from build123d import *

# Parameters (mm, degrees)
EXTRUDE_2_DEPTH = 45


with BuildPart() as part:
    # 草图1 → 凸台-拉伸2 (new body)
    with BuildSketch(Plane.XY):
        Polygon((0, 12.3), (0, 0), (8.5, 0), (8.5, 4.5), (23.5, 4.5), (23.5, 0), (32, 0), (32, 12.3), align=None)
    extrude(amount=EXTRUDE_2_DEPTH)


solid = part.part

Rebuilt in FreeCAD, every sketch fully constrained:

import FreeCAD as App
import Part
import Sketcher

V = App.Vector

doc = App.newDocument("Part")
body = doc.addObject("PartDesign::Body", "Body")

# Sketch on XY plane
sketch1 = doc.addObject("Sketcher::SketchObject", "Sketch")
body.addObject(sketch1)
sketch1.AttachmentSupport = (doc.XY_Plane, [""])
sketch1.MapMode = "FlatFace"
sketch1.addGeometry([
    Part.LineSegment(V(0, 12.3, 0), V(0, 0, 0)),  # 0
    Part.LineSegment(V(0, 0, 0), V(8.5, 0, 0)),  # 1
    Part.LineSegment(V(8.5, 0, 0), V(8.5, 4.5, 0)),  # 2
    Part.LineSegment(V(8.5, 4.5, 0), V(23.5, 4.5, 0)),  # 3
    Part.LineSegment(V(23.5, 4.5, 0), V(23.5, 0, 0)),  # 4
    Part.LineSegment(V(23.5, 0, 0), V(32, 0, 0)),  # 5
    Part.LineSegment(V(32, 0, 0), V(32, 12.3, 0)),  # 6
    Part.LineSegment(V(32, 12.3, 0), V(0, 12.3, 0)),  # 7
], False)
sketch1.addConstraint([
    Sketcher.Constraint("Coincident", 0, 2, 1, 1),
    Sketcher.Constraint("Coincident", 1, 2, 2, 1),
    Sketcher.Constraint("Coincident", 2, 2, 3, 1),
    Sketcher.Constraint("Coincident", 3, 2, 4, 1),
    Sketcher.Constraint("Coincident", 4, 2, 5, 1),
    Sketcher.Constraint("Coincident", 5, 2, 6, 1),
    Sketcher.Constraint("Coincident", 6, 2, 7, 1),
    Sketcher.Constraint("Coincident", 7, 2, 0, 1),
    Sketcher.Constraint("Vertical", 0),
    Sketcher.Constraint("Horizontal", 1),
    Sketcher.Constraint("Vertical", 2),
    Sketcher.Constraint("Horizontal", 3),
    Sketcher.Constraint("Vertical", 4),
    Sketcher.Constraint("Horizontal", 5),
    Sketcher.Constraint("Vertical", 6),
    Sketcher.Constraint("Horizontal", 7),
    Sketcher.Constraint("Coincident", 0, 2, -1, 1),
    Sketcher.Constraint("PointOnObject", 4, 2, -1),
    Sketcher.Constraint("Equal", 1, 5),
    Sketcher.Constraint("DistanceX", 3, 1, 3, 2, 15.0),
    Sketcher.Constraint("DistanceX", 7, 2, 7, 1, 32.0),
    Sketcher.Constraint("DistanceY", 0, 2, 0, 1, 12.3),
    Sketcher.Constraint("DistanceY", 2, 1, 2, 2, 4.5),
])
pad1 = doc.addObject("PartDesign::Pad", "Pad")
body.addObject(pad1)
pad1.Profile = sketch1
pad1.Length = 45

doc.recompute()
